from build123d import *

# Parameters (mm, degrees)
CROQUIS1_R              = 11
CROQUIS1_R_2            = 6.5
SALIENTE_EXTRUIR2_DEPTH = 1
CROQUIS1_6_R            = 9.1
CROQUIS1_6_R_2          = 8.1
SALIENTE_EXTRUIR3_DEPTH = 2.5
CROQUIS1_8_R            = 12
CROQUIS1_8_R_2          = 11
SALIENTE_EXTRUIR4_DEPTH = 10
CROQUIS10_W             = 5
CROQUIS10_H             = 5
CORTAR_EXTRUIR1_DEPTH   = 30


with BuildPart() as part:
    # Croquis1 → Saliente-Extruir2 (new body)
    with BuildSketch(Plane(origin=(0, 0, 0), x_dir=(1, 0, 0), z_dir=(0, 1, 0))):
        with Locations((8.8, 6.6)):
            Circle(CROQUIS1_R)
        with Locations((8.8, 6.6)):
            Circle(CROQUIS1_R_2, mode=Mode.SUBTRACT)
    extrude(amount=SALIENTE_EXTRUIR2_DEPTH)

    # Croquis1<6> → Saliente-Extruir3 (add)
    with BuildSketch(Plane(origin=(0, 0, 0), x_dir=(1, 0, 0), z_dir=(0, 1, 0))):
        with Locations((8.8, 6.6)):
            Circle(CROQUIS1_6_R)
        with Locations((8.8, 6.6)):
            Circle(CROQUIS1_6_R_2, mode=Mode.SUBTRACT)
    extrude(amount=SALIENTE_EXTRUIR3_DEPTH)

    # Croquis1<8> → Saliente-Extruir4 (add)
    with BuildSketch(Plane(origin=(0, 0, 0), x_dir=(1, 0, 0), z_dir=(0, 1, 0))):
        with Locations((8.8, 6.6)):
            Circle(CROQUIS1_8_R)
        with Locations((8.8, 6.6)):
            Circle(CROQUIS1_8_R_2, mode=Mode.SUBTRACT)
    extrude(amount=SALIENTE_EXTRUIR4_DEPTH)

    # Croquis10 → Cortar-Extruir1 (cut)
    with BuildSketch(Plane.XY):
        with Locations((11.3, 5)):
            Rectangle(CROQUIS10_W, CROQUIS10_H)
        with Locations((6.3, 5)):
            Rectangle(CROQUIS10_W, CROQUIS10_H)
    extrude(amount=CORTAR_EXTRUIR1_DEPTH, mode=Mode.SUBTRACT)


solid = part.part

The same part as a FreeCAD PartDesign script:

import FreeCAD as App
import Part
import Sketcher
from FreeCAD import Vector

doc = App.newDocument("Part")
body = doc.addObject("PartDesign::Body", "Body")

# Sketch on XZ plane
sketch1 = body.newObject("Sketcher::SketchObject", "Sketch")
sketch1.AttachmentSupport = (doc.getObject("XZ_Plane"), [""])
sketch1.MapMode = "FlatFace"
sketch1.addGeometry(Part.Circle(Vector(9, -7, 0), Vector(0, 0, 1), 11), False)
sketch1.addGeometry(Part.Circle(Vector(9, -7, 0), Vector(0, 0, 1), 6), False)
sketch1.addConstraint(Sketcher.Constraint("Coincident", 1, 3, 0, 3))
sketch1.addConstraint(Sketcher.Constraint("Diameter", 0, 22.0))
sketch1.addConstraint(Sketcher.Constraint("Diameter", 1, 13.0))
sketch1.addConstraint(Sketcher.Constraint("DistanceX", -1, 1, 0, 3, 8.8))
sketch1.addConstraint(Sketcher.Constraint("DistanceY", 0, 3, -1, 1, 6.6))
pad1 = body.newObject("PartDesign::Pad", "Pad")
pad1.Profile = sketch1
pad1.Length = 1
pad1.Reversed = True

# Sketch on XZ plane
sketch2 = body.newObject("Sketcher::SketchObject", "Sketch001")
sketch2.AttachmentSupport = (doc.getObject("XZ_Plane"), [""])
sketch2.MapMode = "FlatFace"
sketch2.addGeometry(Part.Circle(Vector(9, -7, 0), Vector(0, 0, 1), 9), False)
sketch2.addGeometry(Part.Circle(Vector(9, -7, 0), Vector(0, 0, 1), 8), False)
sketch2.addConstraint(Sketcher.Constraint("Coincident", 1, 3, 0, 3))
sketch2.addConstraint(Sketcher.Constraint("Diameter", 0, 18.2))
sketch2.addConstraint(Sketcher.Constraint("Diameter", 1, 16.2))
sketch2.addConstraint(Sketcher.Constraint("DistanceX", -1, 1, 0, 3, 8.8))
sketch2.addConstraint(Sketcher.Constraint("DistanceY", 0, 3, -1, 1, 6.6))
pad2 = body.newObject("PartDesign::Pad", "Pad001")
pad2.Profile = sketch2
pad2.Length = 2.5
pad2.Reversed = True

# Sketch on XZ plane
sketch3 = body.newObject("Sketcher::SketchObject", "Sketch002")
sketch3.AttachmentSupport = (doc.getObject("XZ_Plane"), [""])
sketch3.MapMode = "FlatFace"
sketch3.addGeometry(Part.Circle(Vector(9, -7, 0), Vector(0, 0, 1), 12), False)
sketch3.addGeometry(Part.Circle(Vector(9, -7, 0), Vector(0, 0, 1), 11), False)
sketch3.addConstraint(Sketcher.Constraint("Coincident", 1, 3, 0, 3))
sketch3.addConstraint(Sketcher.Constraint("Diameter", 0, 24.0))
sketch3.addConstraint(Sketcher.Constraint("Diameter", 1, 22.0))
sketch3.addConstraint(Sketcher.Constraint("DistanceX", -1, 1, 0, 3, 8.8))
sketch3.addConstraint(Sketcher.Constraint("DistanceY", 0, 3, -1, 1, 6.6))
pad3 = body.newObject("PartDesign::Pad", "Pad002")
pad3.Profile = sketch3
pad3.Length = 10
pad3.Reversed = True

# Sketch on XY plane
sketch4 = body.newObject("Sketcher::SketchObject", "Sketch003")
sketch4.AttachmentSupport = (doc.getObject("XY_Plane"), [""])
sketch4.MapMode = "FlatFace"
sketch4.addGeometry(Part.LineSegment(Vector(14, 2, 0), Vector(14, 8, 0)), False)
sketch4.addGeometry(Part.LineSegment(Vector(14, 8, 0), Vector(4, 8, 0)), False)
sketch4.addGeometry(Part.LineSegment(Vector(4, 8, 0), Vector(4, 2, 0)), False)
sketch4.addGeometry(Part.LineSegment(Vector(4, 2, 0), Vector(14, 2, 0)), False)
sketch4.addConstraint(Sketcher.Constraint("Coincident", 0, 2, 1, 1))
sketch4.addConstraint(Sketcher.Constraint("Coincident", 1, 2, 2, 1))
sketch4.addConstraint(Sketcher.Constraint("Coincident", 2, 2, 3, 1))
sketch4.addConstraint(Sketcher.Constraint("Coincident", 3, 2, 0, 1))
sketch4.addConstraint(Sketcher.Constraint("Vertical", 0))
sketch4.addConstraint(Sketcher.Constraint("Horizontal", 1))
sketch4.addConstraint(Sketcher.Constraint("Vertical", 2))
sketch4.addConstraint(Sketcher.Constraint("Horizontal", 3))
sketch4.addConstraint(Sketcher.Constraint("DistanceX", 1, 2, 1, 1, 10.0))
sketch4.addConstraint(Sketcher.Constraint("DistanceY", 0, 1, 0, 2, 5.0))
sketch4.addConstraint(Sketcher.Constraint("DistanceX", -1, 1, 0, 2, 13.8))
sketch4.addConstraint(Sketcher.Constraint("DistanceY", -1, 1, 0, 2, 7.5))
pocket1 = body.newObject("PartDesign::Pocket", "Pocket")
pocket1.Profile = sketch4
pocket1.Length = 30
pocket1.Reversed = True

doc.recompute()
